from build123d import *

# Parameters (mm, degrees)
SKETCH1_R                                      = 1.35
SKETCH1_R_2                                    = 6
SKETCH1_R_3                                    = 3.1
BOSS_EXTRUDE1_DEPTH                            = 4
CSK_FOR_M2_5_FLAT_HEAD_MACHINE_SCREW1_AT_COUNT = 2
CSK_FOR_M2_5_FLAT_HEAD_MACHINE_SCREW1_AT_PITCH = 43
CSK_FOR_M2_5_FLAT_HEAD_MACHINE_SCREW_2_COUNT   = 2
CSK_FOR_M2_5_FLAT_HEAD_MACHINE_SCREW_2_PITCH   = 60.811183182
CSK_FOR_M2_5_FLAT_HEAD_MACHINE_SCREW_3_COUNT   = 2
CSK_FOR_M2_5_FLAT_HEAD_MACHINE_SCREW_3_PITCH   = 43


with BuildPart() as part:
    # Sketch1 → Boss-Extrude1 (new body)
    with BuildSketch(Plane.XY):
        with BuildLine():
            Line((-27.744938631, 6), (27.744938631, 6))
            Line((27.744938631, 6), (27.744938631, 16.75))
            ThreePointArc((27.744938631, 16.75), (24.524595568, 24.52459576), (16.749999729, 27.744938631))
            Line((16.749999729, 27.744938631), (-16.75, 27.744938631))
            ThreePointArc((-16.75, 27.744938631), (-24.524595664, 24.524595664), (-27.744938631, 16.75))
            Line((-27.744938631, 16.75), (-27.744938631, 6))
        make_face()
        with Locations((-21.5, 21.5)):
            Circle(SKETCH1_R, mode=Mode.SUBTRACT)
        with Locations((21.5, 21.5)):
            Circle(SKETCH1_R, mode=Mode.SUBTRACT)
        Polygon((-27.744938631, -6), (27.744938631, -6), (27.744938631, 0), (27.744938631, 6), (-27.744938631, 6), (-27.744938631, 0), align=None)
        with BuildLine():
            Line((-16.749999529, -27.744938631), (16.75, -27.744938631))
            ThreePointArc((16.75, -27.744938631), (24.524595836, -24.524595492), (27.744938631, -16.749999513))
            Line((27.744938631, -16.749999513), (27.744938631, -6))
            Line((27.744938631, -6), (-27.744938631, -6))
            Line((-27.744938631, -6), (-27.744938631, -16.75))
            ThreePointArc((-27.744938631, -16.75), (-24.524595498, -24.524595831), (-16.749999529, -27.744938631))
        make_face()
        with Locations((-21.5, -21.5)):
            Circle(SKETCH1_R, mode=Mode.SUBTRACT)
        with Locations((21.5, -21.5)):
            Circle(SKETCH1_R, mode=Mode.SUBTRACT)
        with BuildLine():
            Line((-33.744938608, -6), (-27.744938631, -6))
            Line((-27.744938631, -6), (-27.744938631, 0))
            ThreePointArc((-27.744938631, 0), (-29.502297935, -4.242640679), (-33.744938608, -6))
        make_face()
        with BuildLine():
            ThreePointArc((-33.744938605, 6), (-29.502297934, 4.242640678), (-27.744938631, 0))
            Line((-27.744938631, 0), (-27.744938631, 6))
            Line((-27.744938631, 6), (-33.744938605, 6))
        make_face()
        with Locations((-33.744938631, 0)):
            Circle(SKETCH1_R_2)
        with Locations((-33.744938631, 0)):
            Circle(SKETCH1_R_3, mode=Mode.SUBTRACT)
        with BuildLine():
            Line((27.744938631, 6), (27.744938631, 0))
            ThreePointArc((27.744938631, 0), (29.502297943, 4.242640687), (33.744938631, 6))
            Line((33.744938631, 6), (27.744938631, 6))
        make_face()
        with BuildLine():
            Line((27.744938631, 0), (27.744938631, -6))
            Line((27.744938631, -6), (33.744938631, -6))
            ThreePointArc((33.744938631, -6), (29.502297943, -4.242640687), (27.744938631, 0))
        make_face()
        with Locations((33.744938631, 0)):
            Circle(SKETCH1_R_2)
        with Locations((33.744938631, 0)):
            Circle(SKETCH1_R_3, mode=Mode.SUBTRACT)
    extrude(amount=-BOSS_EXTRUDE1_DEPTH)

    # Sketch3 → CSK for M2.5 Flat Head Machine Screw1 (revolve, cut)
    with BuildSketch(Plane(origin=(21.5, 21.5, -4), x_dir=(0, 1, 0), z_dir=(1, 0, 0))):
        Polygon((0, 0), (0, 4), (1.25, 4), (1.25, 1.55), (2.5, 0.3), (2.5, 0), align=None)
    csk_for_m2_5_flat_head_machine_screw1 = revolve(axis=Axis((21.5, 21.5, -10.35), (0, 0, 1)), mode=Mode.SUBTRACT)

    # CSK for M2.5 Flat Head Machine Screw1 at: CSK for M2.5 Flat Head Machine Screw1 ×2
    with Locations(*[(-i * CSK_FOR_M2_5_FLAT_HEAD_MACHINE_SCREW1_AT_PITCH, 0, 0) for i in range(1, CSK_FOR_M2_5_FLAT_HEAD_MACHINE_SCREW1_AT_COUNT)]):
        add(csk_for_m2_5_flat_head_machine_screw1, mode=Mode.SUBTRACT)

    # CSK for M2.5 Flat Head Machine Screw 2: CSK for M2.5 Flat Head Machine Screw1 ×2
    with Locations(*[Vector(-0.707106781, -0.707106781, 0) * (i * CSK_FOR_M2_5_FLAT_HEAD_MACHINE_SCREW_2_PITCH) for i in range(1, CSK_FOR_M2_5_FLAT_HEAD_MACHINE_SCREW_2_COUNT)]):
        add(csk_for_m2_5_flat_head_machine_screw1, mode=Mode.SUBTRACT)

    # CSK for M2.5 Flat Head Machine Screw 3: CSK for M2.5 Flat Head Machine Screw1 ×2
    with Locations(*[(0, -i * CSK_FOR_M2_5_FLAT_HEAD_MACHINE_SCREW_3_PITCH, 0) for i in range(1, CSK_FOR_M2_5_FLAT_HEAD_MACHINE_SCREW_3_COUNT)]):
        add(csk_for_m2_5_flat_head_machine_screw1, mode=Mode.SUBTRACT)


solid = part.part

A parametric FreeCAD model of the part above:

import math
import FreeCAD as App
import Part
import Sketcher

V = App.Vector
Q = App.Units.Quantity


def add_polygon(sketch, points):
    """Adds a closed chain of lines whose ends are joined by coincident constraints."""
    first, n = sketch.GeometryCount, len(points)
    for a, b in zip(points, points[1:] + points[:1]):
        sketch.addGeometry(Part.LineSegment(App.Vector(*a, 0), App.Vector(*b, 0)), False)
    for i in range(n):
        sketch.addConstraint(Sketcher.Constraint("Coincident", first + i, 2, first + (i + 1) % n, 1))

doc = App.newDocument("Part")
body = doc.addObject("PartDesign::Body", "Body")

sketch1 = doc.addObject("Sketcher::SketchObject", "Sketch")
body.addObject(sketch1)
sketch1.AttachmentSupport = (doc.XY_Plane, [""])
sketch1.MapMode = "FlatFace"
sketch1.addGeometry(Part.LineSegment(V(-27.7, 16.8, 0), V(-27.7, 6, 0)), False)
sketch1.addGeometry(Part.LineSegment(V(-27.7, 6, 0), V(-33.7, 6, 0)), False)
sketch1.addGeometry(Part.ArcOfCircle(Part.Circle(V(-33.7, 0, 0), V(0, 0, 1), 6), math.radians(90), math.radians(270)), False)
sketch1.addGeometry(Part.LineSegment(V(-33.7, -6, 0), V(-27.7, -6, 0)), False)
sketch1.addGeometry(Part.LineSegment(V(-27.7, -6, 0), V(-27.7, -16.8, 0)), False)
sketch1.addGeometry(Part.ArcOfCircle(Part.Circle(V(-16.7, -16.7, 0), V(0, 0, 1), 11), math.radians(-180), math.radians(-90)), False)
sketch1.addGeometry(Part.LineSegment(V(-16.7, -27.7, 0), V(16.8, -27.7, 0)), False)
sketch1.addGeometry(Part.ArcOfCircle(Part.Circle(V(16.7, -16.7, 0), V(0, 0, 1), 11), math.radians(-90), math.radians(0)), False)
sketch1.addGeometry(Part.LineSegment(V(27.7, -16.7, 0), V(27.7, -6, 0)), False)
sketch1.addGeometry(Part.LineSegment(V(27.7, -6, 0), V(33.7, -6, 0)), False)
sketch1.addGeometry(Part.ArcOfCircle(Part.Circle(V(33.7, 0, 0), V(0, 0, 1), 6), math.radians(-90), math.radians(90)), False)
sketch1.addGeometry(Part.LineSegment(V(33.7, 6, 0), V(27.7, 6, 0)), False)
sketch1.addGeometry(Part.LineSegment(V(27.7, 6, 0), V(27.7, 16.8, 0)), False)
sketch1.addGeometry(Part.ArcOfCircle(Part.Circle(V(16.7, 16.7, 0), V(0, 0, 1), 11), math.radians(0), math.radians(90)), False)
sketch1.addGeometry(Part.LineSegment(V(16.7, 27.7, 0), V(-16.8, 27.7, 0)), False)
sketch1.addGeometry(Part.ArcOfCircle(Part.Circle(V(-16.7, 16.7, 0), V(0, 0, 1), 11), math.radians(90), math.radians(180)), False)
sketch1.addGeometry(Part.Circle(V(-21.5, -21.5, 0), V(0, 0, 1), 1.4), False)
sketch1.addGeometry(Part.Circle(V(21.5, -21.5, 0), V(0, 0, 1), 1.4), False)
sketch1.addGeometry(Part.Circle(V(-33.7, 0, 0), V(0, 0, 1), 3.1), False)
sketch1.addGeometry(Part.Circle(V(-21.5, 21.5, 0), V(0, 0, 1), 1.4), False)
sketch1.addGeometry(Part.Circle(V(33.7, 0, 0), V(0, 0, 1), 3.1), False)
sketch1.addGeometry(Part.Circle(V(21.5, 21.5, 0), V(0, 0, 1), 1.4), False)
sketch1.addConstraint(Sketcher.Constraint("Coincident", 0, 2, 1, 1))
sketch1.addConstraint(Sketcher.Constraint("Tangent", 1, 2, 2, 1))
sketch1.addConstraint(Sketcher.Constraint("Tangent", 2, 2, 3, 1))
sketch1.addConstraint(Sketcher.Constraint("Coincident", 3, 2, 4, 1))
sketch1.addConstraint(Sketcher.Constraint("Tangent", 4, 2, 5, 1))
sketch1.addConstraint(Sketcher.Constraint("Tangent", 5, 2, 6, 1))
sketch1.addConstraint(Sketcher.Constraint("Tangent", 6, 2, 7, 1))
sketch1.addConstraint(Sketcher.Constraint("Tangent", 7, 2, 8, 1))
sketch1.addConstraint(Sketcher.Constraint("Coincident", 8, 2, 9, 1))
sketch1.addConstraint(Sketcher.Constraint("Tangent", 9, 2, 10, 1))
sketch1.addConstraint(Sketcher.Constraint("Tangent", 10, 2, 11, 1))
sketch1.addConstraint(Sketcher.Constraint("Coincident", 11, 2, 12, 1))
sketch1.addConstraint(Sketcher.Constraint("Tangent", 12, 2, 13, 1))
sketch1.addConstraint(Sketcher.Constraint("Tangent", 13, 2, 14, 1))
sketch1.addConstraint(Sketcher.Constraint("Tangent", 14, 2, 15, 1))
sketch1.addConstraint(Sketcher.Constraint("Tangent", 15, 2, 0, 1))
sketch1.addConstraint(Sketcher.Constraint("Vertical", 0))
sketch1.addConstraint(Sketcher.Constraint("Horizontal", 1))
sketch1.addConstraint(Sketcher.Constraint("Horizontal", 3))
sketch1.addConstraint(Sketcher.Constraint("Vertical", 4))
sketch1.addConstraint(Sketcher.Constraint("Horizontal", 6))
sketch1.addConstraint(Sketcher.Constraint("Vertical", 8))
sketch1.addConstraint(Sketcher.Constraint("Horizontal", 9))
sketch1.addConstraint(Sketcher.Constraint("Horizontal", 11))
sketch1.addConstraint(Sketcher.Constraint("Vertical", 12))
sketch1.addConstraint(Sketcher.Constraint("Horizontal", 14))
sketch1.addConstraint(Sketcher.Constraint("Coincident", 18, 3, 2, 3))
sketch1.addConstraint(Sketcher.Constraint("Coincident", 20, 3, 10, 3))
sketch1.addConstraint(Sketcher.Constraint("Equal", 5, 7))
sketch1.addConstraint(Sketcher.Constraint("Equal", 2, 10))
sketch1.addConstraint(Sketcher.Constraint("Equal", 7, 13))
sketch1.addConstraint(Sketcher.Constraint("Equal", 13, 15))
sketch1.addConstraint(Sketcher.Constraint("Equal", 16, 17))
sketch1.addConstraint(Sketcher.Constraint("Equal", 17, 19))
sketch1.addConstraint(Sketcher.Constraint("Equal", 18, 20))
sketch1.addConstraint(Sketcher.Constraint("Equal", 19, 21))
sketch1.addConstraint(Sketcher.Constraint("Symmetric", 2, 3, 10, 3, -1, 1))
sketch1.addConstraint(Sketcher.Constraint("Symmetric", 5, 3, 13, 3, -1, 1))
sketch1.addConstraint(Sketcher.Constraint("Symmetric", 17, 3, 19, 3, -1, 1))
sketch1.addConstraint(Sketcher.Constraint("Symmetric", 16, 3, 21, 3, -1, 1))
sketch1.addConstraint(Sketcher.Constraint("Symmetric", 16, 3, 17, 3, -2))
sketch1.addConstraint(Sketcher.Constraint("Symmetric", 3, 2, 8, 2, -2))
sketch1.addConstraint(Sketcher.Constraint("Vertical", 5, 3, 15, 3))
sketch1.addConstraint(Sketcher.Constraint("Radius", 2, 6.0))
sketch1.addConstraint(Sketcher.Constraint("Diameter", 16, 2.7))
sketch1.addConstraint(Sketcher.Constraint("Diameter", 18, 6.2))
sketch1.addConstraint(Sketcher.Constraint("DistanceX", 1, 2, 1, 1, 6.0))
sketch1.addConstraint(Sketcher.Constraint("DistanceX", 6, 1, 6, 2, 33.5))
sketch1.addConstraint(Sketcher.Constraint("DistanceX", 16, 3, 17, 3, 43.0))
sketch1.addConstraint(Sketcher.Constraint("DistanceY", 0, 2, 0, 1, 10.75))
sketch1.addConstraint(Sketcher.Constraint("DistanceY", 16, 3, -1, 1, 21.5))
sketch1.addConstraint(Sketcher.Constraint("Radius", 5, 10.994939))
pad1 = doc.addObject("PartDesign::Pad", "Pad")
body.addObject(pad1)
pad1.Profile = sketch1
pad1.Length = 4
pad1.Reversed = True

sketch2 = doc.addObject("Sketcher::SketchObject", "Sketch001")
body.addObject(sketch2)
sketch2.AttachmentSupport = (doc.YZ_Plane, [""])
sketch2.MapMode = "FlatFace"
sketch2.AttachmentOffset = App.Placement(V(0, 0, 21.5), App.Rotation())
add_polygon(sketch2, [(21.5, 0), (21.5, -4), (24, -4), (24, -3.7), (22.75, -2.45), (22.75, 0)])
sketch2.addGeometry(Part.LineSegment(V(21.5, -4, 0), V(21.5, 0, 0)), True)
sketch2.addConstraint(Sketcher.Constraint("Vertical", 0))
sketch2.addConstraint(Sketcher.Constraint("Horizontal", 1))
sketch2.addConstraint(Sketcher.Constraint("Vertical", 2))
sketch2.addConstraint(Sketcher.Constraint("Vertical", 4))
sketch2.addConstraint(Sketcher.Constraint("Horizontal", 5))
sketch2.addConstraint(Sketcher.Constraint("Vertical", 6))
sketch2.addConstraint(Sketcher.Constraint("Coincident", 6, 1, 0, 2))
sketch2.addConstraint(Sketcher.Constraint("PointOnObject", 4, 2, -1))
sketch2.addConstraint(Sketcher.Constraint("PointOnObject", 6, 2, -1))
sketch2.addConstraint(Sketcher.Constraint("DistanceY", 0, 2, 0, 1, 4.0))
sketch2.addConstraint(Sketcher.Constraint("Angle", 3, Q("135 deg")))
sketch2.addConstraint(Sketcher.Constraint("DistanceX", 1, 1, 1, 2, 2.5))
sketch2.addConstraint(Sketcher.Constraint("DistanceY", 2, 1, 2, 2, 0.3))
sketch2.addConstraint(Sketcher.Constraint("DistanceX", -1, 1, 1, 2, 24.0))
sketch2.addConstraint(Sketcher.Constraint("DistanceX", 5, 2, 5, 1, 1.25))
groove = doc.addObject("PartDesign::Groove", "Groove")
body.addObject(groove)
groove.Profile = sketch2
groove.ReferenceAxis = (sketch2, ["Axis0"])
groove.Angle = 360
doc.recompute()

linearpattern = doc.addObject("PartDesign::LinearPattern", "LinearPattern")
body.addObject(linearpattern)
linearpattern.Originals = [groove]
linearpattern.Direction = (doc.X_Axis, [""])
linearpattern.Mode = "offset"
linearpattern.Offset = 43
linearpattern.Occurrences = 2
linearpattern.Reversed = True
body.Tip = linearpattern
doc.recompute()

datumline = doc.addObject("PartDesign::Line", "DatumLine")
body.addObject(datumline)
datumline.Placement = App.Placement(V(0, 0, 0), App.Rotation(V(0, 0, 1), V(-0.707106781, -0.707106781, 0)))
linearpattern2 = doc.addObject("PartDesign::LinearPattern", "LinearPattern001")
body.addObject(linearpattern2)
linearpattern2.Originals = [groove]
linearpattern2.Direction = (datumline, [""])
linearpattern2.Mode = "offset"
linearpattern2.Offset = 60.811183
linearpattern2.Occurrences = 2
body.Tip = linearpattern2
doc.recompute()

linearpattern3 = doc.addObject("PartDesign::LinearPattern", "LinearPattern002")
body.addObject(linearpattern3)
linearpattern3.Originals = [groove]
linearpattern3.Direction = (doc.Y_Axis, [""])
linearpattern3.Mode = "offset"
linearpattern3.Offset = 43
linearpattern3.Occurrences = 2
linearpattern3.Reversed = True
body.Tip = linearpattern3

doc.recompute()
